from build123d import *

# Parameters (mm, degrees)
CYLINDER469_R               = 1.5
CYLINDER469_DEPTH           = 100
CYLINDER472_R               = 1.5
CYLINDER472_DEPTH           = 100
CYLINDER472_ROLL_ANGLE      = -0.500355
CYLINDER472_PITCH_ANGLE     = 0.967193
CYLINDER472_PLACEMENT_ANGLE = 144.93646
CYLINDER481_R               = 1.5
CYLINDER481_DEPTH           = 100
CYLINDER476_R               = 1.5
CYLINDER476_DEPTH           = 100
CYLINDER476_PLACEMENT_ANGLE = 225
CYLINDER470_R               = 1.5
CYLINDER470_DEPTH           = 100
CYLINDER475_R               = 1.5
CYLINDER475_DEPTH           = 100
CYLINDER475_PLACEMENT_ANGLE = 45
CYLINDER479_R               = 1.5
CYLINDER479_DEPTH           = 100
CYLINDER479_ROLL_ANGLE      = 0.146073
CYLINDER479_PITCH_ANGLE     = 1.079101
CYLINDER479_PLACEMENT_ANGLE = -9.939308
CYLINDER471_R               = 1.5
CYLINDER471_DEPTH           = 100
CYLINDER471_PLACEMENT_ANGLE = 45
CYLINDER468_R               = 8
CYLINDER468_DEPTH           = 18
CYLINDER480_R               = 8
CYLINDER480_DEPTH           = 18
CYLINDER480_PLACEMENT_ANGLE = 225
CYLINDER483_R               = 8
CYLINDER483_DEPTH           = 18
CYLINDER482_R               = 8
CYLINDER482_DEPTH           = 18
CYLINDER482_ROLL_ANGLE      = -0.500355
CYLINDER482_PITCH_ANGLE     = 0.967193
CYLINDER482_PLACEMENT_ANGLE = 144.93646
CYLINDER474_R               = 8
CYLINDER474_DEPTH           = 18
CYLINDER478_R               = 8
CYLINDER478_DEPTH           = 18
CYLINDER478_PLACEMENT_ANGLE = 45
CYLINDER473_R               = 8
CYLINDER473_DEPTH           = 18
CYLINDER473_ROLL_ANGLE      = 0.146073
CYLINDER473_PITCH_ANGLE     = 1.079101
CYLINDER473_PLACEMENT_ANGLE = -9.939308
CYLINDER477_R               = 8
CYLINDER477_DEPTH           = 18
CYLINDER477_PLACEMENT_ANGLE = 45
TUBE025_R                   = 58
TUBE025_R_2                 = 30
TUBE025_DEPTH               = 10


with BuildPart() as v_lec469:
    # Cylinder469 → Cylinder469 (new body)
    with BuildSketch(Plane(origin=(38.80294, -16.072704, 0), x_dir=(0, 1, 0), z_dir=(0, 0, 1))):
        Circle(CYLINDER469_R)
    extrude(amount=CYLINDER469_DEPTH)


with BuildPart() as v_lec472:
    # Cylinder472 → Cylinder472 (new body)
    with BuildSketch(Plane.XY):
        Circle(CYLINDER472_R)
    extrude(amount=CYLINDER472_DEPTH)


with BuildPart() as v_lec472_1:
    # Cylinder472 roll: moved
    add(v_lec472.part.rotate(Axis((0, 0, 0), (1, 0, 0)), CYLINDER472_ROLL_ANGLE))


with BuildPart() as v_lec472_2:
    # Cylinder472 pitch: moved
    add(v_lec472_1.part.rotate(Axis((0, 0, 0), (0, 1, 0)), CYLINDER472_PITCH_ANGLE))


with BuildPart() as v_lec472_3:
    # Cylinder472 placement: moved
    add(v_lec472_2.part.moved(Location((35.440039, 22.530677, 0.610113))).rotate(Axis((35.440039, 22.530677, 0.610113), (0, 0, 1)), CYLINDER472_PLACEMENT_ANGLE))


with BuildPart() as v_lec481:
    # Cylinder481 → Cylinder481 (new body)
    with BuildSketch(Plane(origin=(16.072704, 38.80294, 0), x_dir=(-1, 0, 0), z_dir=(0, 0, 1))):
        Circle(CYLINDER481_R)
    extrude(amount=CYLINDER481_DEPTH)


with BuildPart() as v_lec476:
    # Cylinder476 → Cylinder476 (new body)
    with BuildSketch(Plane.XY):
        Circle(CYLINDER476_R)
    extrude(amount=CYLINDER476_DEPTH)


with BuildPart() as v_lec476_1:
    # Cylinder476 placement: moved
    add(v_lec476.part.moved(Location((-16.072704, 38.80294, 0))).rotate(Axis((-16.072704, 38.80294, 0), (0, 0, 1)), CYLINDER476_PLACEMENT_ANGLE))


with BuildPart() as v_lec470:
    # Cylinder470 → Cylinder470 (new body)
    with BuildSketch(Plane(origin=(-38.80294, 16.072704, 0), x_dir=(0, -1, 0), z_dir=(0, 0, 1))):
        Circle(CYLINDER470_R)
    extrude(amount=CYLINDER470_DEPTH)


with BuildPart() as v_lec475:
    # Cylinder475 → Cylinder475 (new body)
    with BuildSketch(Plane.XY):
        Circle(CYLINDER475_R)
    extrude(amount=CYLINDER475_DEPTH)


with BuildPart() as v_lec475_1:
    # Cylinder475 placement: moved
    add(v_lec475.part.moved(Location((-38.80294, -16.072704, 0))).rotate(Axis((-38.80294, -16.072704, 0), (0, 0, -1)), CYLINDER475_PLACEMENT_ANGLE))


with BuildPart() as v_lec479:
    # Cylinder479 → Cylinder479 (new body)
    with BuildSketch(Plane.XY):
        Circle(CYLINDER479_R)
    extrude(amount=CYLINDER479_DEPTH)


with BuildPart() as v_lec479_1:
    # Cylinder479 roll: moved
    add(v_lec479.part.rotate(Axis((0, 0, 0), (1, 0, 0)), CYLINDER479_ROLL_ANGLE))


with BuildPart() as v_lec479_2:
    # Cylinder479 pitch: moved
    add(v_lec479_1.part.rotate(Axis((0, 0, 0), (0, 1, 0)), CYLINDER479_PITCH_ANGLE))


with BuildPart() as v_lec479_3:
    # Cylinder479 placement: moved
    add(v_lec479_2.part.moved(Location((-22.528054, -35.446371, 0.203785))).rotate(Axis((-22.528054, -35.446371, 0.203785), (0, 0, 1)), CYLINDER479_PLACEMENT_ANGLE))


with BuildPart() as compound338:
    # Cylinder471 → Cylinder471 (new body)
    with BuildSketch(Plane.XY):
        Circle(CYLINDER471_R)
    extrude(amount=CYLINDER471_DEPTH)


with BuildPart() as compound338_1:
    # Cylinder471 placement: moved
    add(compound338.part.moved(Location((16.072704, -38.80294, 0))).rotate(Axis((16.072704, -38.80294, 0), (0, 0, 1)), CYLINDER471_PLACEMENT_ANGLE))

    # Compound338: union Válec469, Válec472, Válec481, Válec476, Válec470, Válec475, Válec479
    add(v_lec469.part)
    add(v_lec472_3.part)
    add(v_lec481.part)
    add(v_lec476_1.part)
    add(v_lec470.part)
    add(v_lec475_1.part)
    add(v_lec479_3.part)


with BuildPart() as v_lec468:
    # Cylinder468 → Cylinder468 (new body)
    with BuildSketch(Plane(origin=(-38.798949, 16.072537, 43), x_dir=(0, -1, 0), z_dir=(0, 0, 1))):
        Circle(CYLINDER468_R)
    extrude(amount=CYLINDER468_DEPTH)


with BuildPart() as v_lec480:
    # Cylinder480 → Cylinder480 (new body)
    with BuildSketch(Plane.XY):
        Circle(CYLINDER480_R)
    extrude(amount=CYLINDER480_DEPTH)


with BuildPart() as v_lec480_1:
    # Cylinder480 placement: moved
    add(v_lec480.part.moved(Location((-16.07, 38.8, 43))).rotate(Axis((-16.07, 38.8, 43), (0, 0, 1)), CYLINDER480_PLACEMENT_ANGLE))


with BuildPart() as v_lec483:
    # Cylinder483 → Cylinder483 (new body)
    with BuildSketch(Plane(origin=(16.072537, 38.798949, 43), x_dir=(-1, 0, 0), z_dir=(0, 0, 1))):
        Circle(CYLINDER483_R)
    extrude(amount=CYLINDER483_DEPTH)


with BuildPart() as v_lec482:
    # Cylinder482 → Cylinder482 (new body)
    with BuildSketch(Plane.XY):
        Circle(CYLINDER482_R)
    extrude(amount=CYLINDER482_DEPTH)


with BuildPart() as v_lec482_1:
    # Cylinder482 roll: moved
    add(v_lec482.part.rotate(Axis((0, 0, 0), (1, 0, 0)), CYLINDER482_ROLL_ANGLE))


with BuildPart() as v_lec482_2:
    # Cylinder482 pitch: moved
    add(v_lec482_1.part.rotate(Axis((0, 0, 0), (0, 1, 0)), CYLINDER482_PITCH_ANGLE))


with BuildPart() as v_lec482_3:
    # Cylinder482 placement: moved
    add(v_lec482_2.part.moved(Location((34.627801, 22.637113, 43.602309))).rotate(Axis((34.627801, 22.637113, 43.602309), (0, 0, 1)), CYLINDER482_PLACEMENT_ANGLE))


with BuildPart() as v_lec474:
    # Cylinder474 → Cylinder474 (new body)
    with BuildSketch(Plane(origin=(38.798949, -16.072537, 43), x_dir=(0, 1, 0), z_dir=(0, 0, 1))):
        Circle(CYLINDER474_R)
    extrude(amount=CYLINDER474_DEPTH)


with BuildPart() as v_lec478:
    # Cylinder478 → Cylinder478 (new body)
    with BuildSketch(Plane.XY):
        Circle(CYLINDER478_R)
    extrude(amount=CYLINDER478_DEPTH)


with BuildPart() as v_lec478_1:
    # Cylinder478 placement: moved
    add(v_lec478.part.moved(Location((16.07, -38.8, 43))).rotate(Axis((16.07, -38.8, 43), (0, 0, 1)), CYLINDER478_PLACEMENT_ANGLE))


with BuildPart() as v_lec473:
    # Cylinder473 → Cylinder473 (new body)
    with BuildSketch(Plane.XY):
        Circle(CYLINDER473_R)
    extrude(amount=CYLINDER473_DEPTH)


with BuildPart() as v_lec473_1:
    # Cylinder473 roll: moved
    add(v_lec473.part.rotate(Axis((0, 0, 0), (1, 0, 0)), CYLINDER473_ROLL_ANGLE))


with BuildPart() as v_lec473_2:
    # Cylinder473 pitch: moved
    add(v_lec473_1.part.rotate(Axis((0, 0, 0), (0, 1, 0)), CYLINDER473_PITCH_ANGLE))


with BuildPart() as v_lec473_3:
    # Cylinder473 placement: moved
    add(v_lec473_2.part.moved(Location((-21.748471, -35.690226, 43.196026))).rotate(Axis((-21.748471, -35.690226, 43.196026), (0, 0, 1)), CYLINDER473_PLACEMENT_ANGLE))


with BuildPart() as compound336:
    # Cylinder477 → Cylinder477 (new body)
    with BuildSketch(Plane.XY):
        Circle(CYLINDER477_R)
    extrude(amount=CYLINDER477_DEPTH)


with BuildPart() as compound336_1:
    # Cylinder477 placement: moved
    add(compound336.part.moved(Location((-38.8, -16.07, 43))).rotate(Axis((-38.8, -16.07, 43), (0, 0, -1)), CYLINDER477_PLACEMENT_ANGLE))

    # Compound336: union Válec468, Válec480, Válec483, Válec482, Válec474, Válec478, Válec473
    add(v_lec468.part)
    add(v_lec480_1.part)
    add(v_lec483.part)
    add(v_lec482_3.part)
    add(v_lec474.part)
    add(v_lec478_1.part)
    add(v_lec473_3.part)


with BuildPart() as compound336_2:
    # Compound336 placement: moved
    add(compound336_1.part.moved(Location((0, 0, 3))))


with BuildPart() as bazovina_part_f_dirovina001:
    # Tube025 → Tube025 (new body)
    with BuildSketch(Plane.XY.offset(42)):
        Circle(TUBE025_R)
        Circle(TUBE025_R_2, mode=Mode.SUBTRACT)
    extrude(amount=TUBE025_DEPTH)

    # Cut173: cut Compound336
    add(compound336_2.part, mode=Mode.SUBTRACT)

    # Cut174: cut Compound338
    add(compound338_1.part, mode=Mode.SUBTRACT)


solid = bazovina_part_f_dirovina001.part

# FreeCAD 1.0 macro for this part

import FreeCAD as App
import Part
import Sketcher

doc = App.newDocument("Part")
body = doc.addObject("PartDesign::Body", "Body")

# Sketch on XY plane
sketch1 = body.newObject("Sketcher::SketchObject", "Sketch")
sketch1.AttachmentSupport = (doc.getObject("XY_Plane"), [""])
sketch1.MapMode = "FlatFace"
sketch1.addGeometry(Part.Circle(App.Vector(38.8, -16.1, 0), App.Vector(0, 0, 1), 1.5), False)
sketch1.addConstraint([
    Sketcher.Constraint("Diameter", 0, 3.0),
    Sketcher.Constraint("DistanceX", -1, 1, 0, 3, 38.80294),
    Sketcher.Constraint("DistanceY", 0, 3, -1, 1, 16.072704),
])
pad1 = body.newObject("PartDesign::Pad", "Pad")
pad1.Profile = sketch1
pad1.Length = 100
body2 = doc.addObject("PartDesign::Body", "Body001")

# Sketch on XY plane
sketch2 = body2.newObject("Sketcher::SketchObject", "Sketch001")
sketch2.AttachmentSupport = (doc.getObject("XY_Plane001"), [""])
sketch2.MapMode = "FlatFace"
sketch2.addGeometry(Part.Circle(App.Vector(0, 0, 0), App.Vector(0, 0, 1), 1.5), False)
sketch2.addConstraint([
    Sketcher.Constraint("Coincident", 0, 3, -1, 1),
    Sketcher.Constraint("Diameter", 0, 3.0),
])
pad2 = body2.newObject("PartDesign::Pad", "Pad001")
pad2.Profile = sketch2
pad2.Length = 100
body3 = doc.addObject("PartDesign::Body", "Body002")
doc.recompute()

body2.Placement = App.Placement(App.Vector(0, 0, 0), App.Rotation(App.Vector(1, 0, 0), 359.499645))
boolean = body3.newObject("PartDesign::Boolean", "Boolean")
boolean.Type = "Fuse"
boolean.addObjects([body2])
body4 = doc.addObject("PartDesign::Body", "Body003")
doc.recompute()

body3.Placement = App.Placement(App.Vector(0, 0, 0), App.Rotation(App.Vector(0, 1, 0), 0.967193))
boolean2 = body4.newObject("PartDesign::Boolean", "Boolean001")
boolean2.Type = "Fuse"
boolean2.addObjects([body3])
body5 = doc.addObject("PartDesign::Body", "Body004")
doc.recompute()

body4.Placement = App.Placement(App.Vector(35.440039, 22.530677, 0.610113), App.Rotation(App.Vector(0, 0, 1), 144.93646))
boolean3 = body5.newObject("PartDesign::Boolean", "Boolean002")
boolean3.Type = "Fuse"
boolean3.addObjects([body4])
body6 = doc.addObject("PartDesign::Body", "Body005")

# Sketch on XY plane
sketch3 = body6.newObject("Sketcher::SketchObject", "Sketch002")
sketch3.AttachmentSupport = (doc.getObject("XY_Plane005"), [""])
sketch3.MapMode = "FlatFace"
sketch3.addGeometry(Part.Circle(App.Vector(16.1, 38.8, 0), App.Vector(0, 0, 1), 1.5), False)
sketch3.addConstraint([
    Sketcher.Constraint("Diameter", 0, 3.0),
    Sketcher.Constraint("DistanceY", -1, 1, 0, 3, 38.80294),
    Sketcher.Constraint("DistanceX", -1, 1, 0, 3, 16.072704),
])
pad3 = body6.newObject("PartDesign::Pad", "Pad002")
pad3.Profile = sketch3
pad3.Length = 100
body7 = doc.addObject("PartDesign::Body", "Body006")

# Sketch on XY plane
sketch4 = body7.newObject("Sketcher::SketchObject", "Sketch003")
sketch4.AttachmentSupport = (doc.getObject("XY_Plane006"), [""])
sketch4.MapMode = "FlatFace"
sketch4.addGeometry(Part.Circle(App.Vector(0, 0, 0), App.Vector(0, 0, 1), 1.5), False)
sketch4.addConstraint([
    Sketcher.Constraint("Coincident", 0, 3, -1, 1),
    Sketcher.Constraint("Diameter", 0, 3.0),
])
pad4 = body7.newObject("PartDesign::Pad", "Pad003")
pad4.Profile = sketch4
pad4.Length = 100
body8 = doc.addObject("PartDesign::Body", "Body007")
doc.recompute()

body7.Placement = App.Placement(App.Vector(-16.072704, 38.80294, 0), App.Rotation(App.Vector(0, 0, 1), 225))
boolean4 = body8.newObject("PartDesign::Boolean", "Boolean003")
boolean4.Type = "Fuse"
boolean4.addObjects([body7])
body9 = doc.addObject("PartDesign::Body", "Body008")

# Sketch on XY plane
sketch5 = body9.newObject("Sketcher::SketchObject", "Sketch004")
sketch5.AttachmentSupport = (doc.getObject("XY_Plane008"), [""])
sketch5.MapMode = "FlatFace"
sketch5.addGeometry(Part.Circle(App.Vector(-38.8, 16.1, 0), App.Vector(0, 0, 1), 1.5), False)
sketch5.addConstraint([
    Sketcher.Constraint("Diameter", 0, 3.0),
    Sketcher.Constraint("DistanceX", 0, 3, -1, 1, 38.80294),
    Sketcher.Constraint("DistanceY", -1, 1, 0, 3, 16.072704),
])
pad5 = body9.newObject("PartDesign::Pad", "Pad004")
pad5.Profile = sketch5
pad5.Length = 100
body10 = doc.addObject("PartDesign::Body", "Body009")

# Sketch on XY plane
sketch6 = body10.newObject("Sketcher::SketchObject", "Sketch005")
sketch6.AttachmentSupport = (doc.getObject("XY_Plane009"), [""])
sketch6.MapMode = "FlatFace"
sketch6.addGeometry(Part.Circle(App.Vector(0, 0, 0), App.Vector(0, 0, 1), 1.5), False)
sketch6.addConstraint([
    Sketcher.Constraint("Coincident", 0, 3, -1, 1),
    Sketcher.Constraint("Diameter", 0, 3.0),
])
pad6 = body10.newObject("PartDesign::Pad", "Pad005")
pad6.Profile = sketch6
pad6.Length = 100
body11 = doc.addObject("PartDesign::Body", "Body010")
doc.recompute()

body10.Placement = App.Placement(App.Vector(-38.80294, -16.072704, 0), App.Rotation(App.Vector(0, 0, -1), 45))
boolean5 = body11.newObject("PartDesign::Boolean", "Boolean004")
boolean5.Type = "Fuse"
boolean5.addObjects([body10])
body12 = doc.addObject("PartDesign::Body", "Body011")

# Sketch on XY plane
sketch7 = body12.newObject("Sketcher::SketchObject", "Sketch006")
sketch7.AttachmentSupport = (doc.getObject("XY_Plane011"), [""])
sketch7.MapMode = "FlatFace"
sketch7.addGeometry(Part.Circle(App.Vector(0, 0, 0), App.Vector(0, 0, 1), 1.5), False)
sketch7.addConstraint([
    Sketcher.Constraint("Coincident", 0, 3, -1, 1),
    Sketcher.Constraint("Diameter", 0, 3.0),
])
pad7 = body12.newObject("PartDesign::Pad", "Pad006")
pad7.Profile = sketch7
pad7.Length = 100
body13 = doc.addObject("PartDesign::Body", "Body012")
doc.recompute()

body12.Placement = App.Placement(App.Vector(0, 0, 0), App.Rotation(App.Vector(1, 0, 0), 0.146073))
boolean6 = body13.newObject("PartDesign::Boolean", "Boolean005")
boolean6.Type = "Fuse"
boolean6.addObjects([body12])
body14 = doc.addObject("PartDesign::Body", "Body013")
doc.recompute()

body13.Placement = App.Placement(App.Vector(0, 0, 0), App.Rotation(App.Vector(0, 1, 0), 1.079101))
boolean7 = body14.newObject("PartDesign::Boolean", "Boolean006")
boolean7.Type = "Fuse"
boolean7.addObjects([body13])
body15 = doc.addObject("PartDesign::Body", "Body014")
doc.recompute()

body14.Placement = App.Placement(App.Vector(-22.528054, -35.446371, 0.203785), App.Rotation(App.Vector(0, 0, 1), 350.060692))
boolean8 = body15.newObject("PartDesign::Boolean", "Boolean007")
boolean8.Type = "Fuse"
boolean8.addObjects([body14])
body16 = doc.addObject("PartDesign::Body", "Body015")

# Sketch on XY plane
sketch8 = body16.newObject("Sketcher::SketchObject", "Sketch007")
sketch8.AttachmentSupport = (doc.getObject("XY_Plane015"), [""])
sketch8.MapMode = "FlatFace"
sketch8.addGeometry(Part.Circle(App.Vector(0, 0, 0), App.Vector(0, 0, 1), 1.5), False)
sketch8.addConstraint([
    Sketcher.Constraint("Coincident", 0, 3, -1, 1),
    Sketcher.Constraint("Diameter", 0, 3.0),
])
pad8 = body16.newObject("PartDesign::Pad", "Pad007")
pad8.Profile = sketch8
pad8.Length = 100
body17 = doc.addObject("PartDesign::Body", "Body016")
body17.AllowCompound = True
doc.recompute()

body16.Placement = App.Placement(App.Vector(16.072704, -38.80294, 0), App.Rotation(App.Vector(0, 0, 1), 45))
boolean9 = body17.newObject("PartDesign::Boolean", "Boolean008")
boolean9.Type = "Fuse"
boolean9.addObjects([body16])
doc.recompute()

boolean10 = body17.newObject("PartDesign::Boolean", "Boolean009")
boolean10.Type = "Fuse"
boolean10.addObjects([body])
doc.recompute()

boolean11 = body17.newObject("PartDesign::Boolean", "Boolean010")
boolean11.Type = "Fuse"
boolean11.addObjects([body5])
doc.recompute()

boolean12 = body17.newObject("PartDesign::Boolean", "Boolean011")
boolean12.Type = "Fuse"
boolean12.addObjects([body6])
doc.recompute()

boolean13 = body17.newObject("PartDesign::Boolean", "Boolean012")
boolean13.Type = "Fuse"
boolean13.addObjects([body8])
doc.recompute()

boolean14 = body17.newObject("PartDesign::Boolean", "Boolean013")
boolean14.Type = "Fuse"
boolean14.addObjects([body9])
doc.recompute()

boolean15 = body17.newObject("PartDesign::Boolean", "Boolean014")
boolean15.Type = "Fuse"
boolean15.addObjects([body11])
doc.recompute()

boolean16 = body17.newObject("PartDesign::Boolean", "Boolean015")
boolean16.Type = "Fuse"
boolean16.addObjects([body15])
body18 = doc.addObject("PartDesign::Body", "Body017")

# Sketch on XY plane
sketch9 = body18.newObject("Sketcher::SketchObject", "Sketch008")
sketch9.AttachmentSupport = (doc.getObject("XY_Plane017"), [""])
sketch9.MapMode = "FlatFace"
sketch9.AttachmentOffset = App.Placement(App.Vector(0, 0, 43), App.Rotation())
sketch9.addGeometry(Part.Circle(App.Vector(-39, 16, 0), App.Vector(0, 0, 1), 8), False)
sketch9.addConstraint([
    Sketcher.Constraint("Diameter", 0, 16.0),
    Sketcher.Constraint("DistanceX", 0, 3, -1, 1, 38.798949),
    Sketcher.Constraint("DistanceY", -1, 1, 0, 3, 16.072537),
])
pad9 = body18.newObject("PartDesign::Pad", "Pad008")
pad9.Profile = sketch9
pad9.Length = 18
body19 = doc.addObject("PartDesign::Body", "Body018")

# Sketch on XY plane
sketch10 = body19.newObject("Sketcher::SketchObject", "Sketch009")
sketch10.AttachmentSupport = (doc.getObject("XY_Plane018"), [""])
sketch10.MapMode = "FlatFace"
sketch10.addGeometry(Part.Circle(App.Vector(0, 0, 0), App.Vector(0, 0, 1), 8), False)
sketch10.addConstraint([
    Sketcher.Constraint("Coincident", 0, 3, -1, 1),
    Sketcher.Constraint("Diameter", 0, 16.0),
])
pad10 = body19.newObject("PartDesign::Pad", "Pad009")
pad10.Profile = sketch10
pad10.Length = 18
body20 = doc.addObject("PartDesign::Body", "Body019")
doc.recompute()

body19.Placement = App.Placement(App.Vector(-16.07, 38.8, 43), App.Rotation(App.Vector(0, 0, 1), 225))
boolean17 = body20.newObject("PartDesign::Boolean", "Boolean016")
boolean17.Type = "Fuse"
boolean17.addObjects([body19])
body21 = doc.addObject("PartDesign::Body", "Body020")

# Sketch on XY plane
sketch11 = body21.newObject("Sketcher::SketchObject", "Sketch010")
sketch11.AttachmentSupport = (doc.getObject("XY_Plane020"), [""])
sketch11.MapMode = "FlatFace"
sketch11.AttachmentOffset = App.Placement(App.Vector(0, 0, 43), App.Rotation())
sketch11.addGeometry(Part.Circle(App.Vector(16, 39, 0), App.Vector(0, 0, 1), 8), False)
sketch11.addConstraint([
    Sketcher.Constraint("Diameter", 0, 16.0),
    Sketcher.Constraint("DistanceY", -1, 1, 0, 3, 38.798949),
    Sketcher.Constraint("DistanceX", -1, 1, 0, 3, 16.072537),
])
pad11 = body21.newObject("PartDesign::Pad", "Pad010")
pad11.Profile = sketch11
pad11.Length = 18
body22 = doc.addObject("PartDesign::Body", "Body021")

# Sketch on XY plane
sketch12 = body22.newObject("Sketcher::SketchObject", "Sketch011")
sketch12.AttachmentSupport = (doc.getObject("XY_Plane021"), [""])
sketch12.MapMode = "FlatFace"
sketch12.addGeometry(Part.Circle(App.Vector(0, 0, 0), App.Vector(0, 0, 1), 8), False)
sketch12.addConstraint([
    Sketcher.Constraint("Coincident", 0, 3, -1, 1),
    Sketcher.Constraint("Diameter", 0, 16.0),
])
pad12 = body22.newObject("PartDesign::Pad", "Pad011")
pad12.Profile = sketch12
pad12.Length = 18
body23 = doc.addObject("PartDesign::Body", "Body022")
doc.recompute()

body22.Placement = App.Placement(App.Vector(0, 0, 0), App.Rotation(App.Vector(1, 0, 0), 359.499645))
boolean18 = body23.newObject("PartDesign::Boolean", "Boolean017")
boolean18.Type = "Fuse"
boolean18.addObjects([body22])
body24 = doc.addObject("PartDesign::Body", "Body023")
doc.recompute()

body23.Placement = App.Placement(App.Vector(0, 0, 0), App.Rotation(App.Vector(0, 1, 0), 0.967193))
boolean19 = body24.newObject("PartDesign::Boolean", "Boolean018")
boolean19.Type = "Fuse"
boolean19.addObjects([body23])
body25 = doc.addObject("PartDesign::Body", "Body024")
doc.recompute()

body24.Placement = App.Placement(App.Vector(34.627801, 22.637113, 43.602309), App.Rotation(App.Vector(0, 0, 1), 144.93646))
boolean20 = body25.newObject("PartDesign::Boolean", "Boolean019")
boolean20.Type = "Fuse"
boolean20.addObjects([body24])
body26 = doc.addObject("PartDesign::Body", "Body025")

# Sketch on XY plane
sketch13 = body26.newObject("Sketcher::SketchObject", "Sketch012")
sketch13.AttachmentSupport = (doc.getObject("XY_Plane025"), [""])
sketch13.MapMode = "FlatFace"
sketch13.AttachmentOffset = App.Placement(App.Vector(0, 0, 43), App.Rotation())
sketch13.addGeometry(Part.Circle(App.Vector(39, -16, 0), App.Vector(0, 0, 1), 8), False)
sketch13.addConstraint([
    Sketcher.Constraint("Diameter", 0, 16.0),
    Sketcher.Constraint("DistanceX", -1, 1, 0, 3, 38.798949),
    Sketcher.Constraint("DistanceY", 0, 3, -1, 1, 16.072537),
])
pad13 = body26.newObject("PartDesign::Pad", "Pad012")
pad13.Profile = sketch13
pad13.Length = 18
body27 = doc.addObject("PartDesign::Body", "Body026")

# Sketch on XY plane
sketch14 = body27.newObject("Sketcher::SketchObject", "Sketch013")
sketch14.AttachmentSupport = (doc.getObject("XY_Plane026"), [""])
sketch14.MapMode = "FlatFace"
sketch14.addGeometry(Part.Circle(App.Vector(0, 0, 0), App.Vector(0, 0, 1), 8), False)
sketch14.addConstraint([
    Sketcher.Constraint("Coincident", 0, 3, -1, 1),
    Sketcher.Constraint("Diameter", 0, 16.0),
])
pad14 = body27.newObject("PartDesign::Pad", "Pad013")
pad14.Profile = sketch14
pad14.Length = 18
body28 = doc.addObject("PartDesign::Body", "Body027")
doc.recompute()

body27.Placement = App.Placement(App.Vector(16.07, -38.8, 43), App.Rotation(App.Vector(0, 0, 1), 45))
boolean21 = body28.newObject("PartDesign::Boolean", "Boolean020")
boolean21.Type = "Fuse"
boolean21.addObjects([body27])
body29 = doc.addObject("PartDesign::Body", "Body028")

# Sketch on XY plane
sketch15 = body29.newObject("Sketcher::SketchObject", "Sketch014")
sketch15.AttachmentSupport = (doc.getObject("XY_Plane028"), [""])
sketch15.MapMode = "FlatFace"
sketch15.addGeometry(Part.Circle(App.Vector(0, 0, 0), App.Vector(0, 0, 1), 8), False)
sketch15.addConstraint([
    Sketcher.Constraint("Coincident", 0, 3, -1, 1),
    Sketcher.Constraint("Diameter", 0, 16.0),
])
pad15 = body29.newObject("PartDesign::Pad", "Pad014")
pad15.Profile = sketch15
pad15.Length = 18
body30 = doc.addObject("PartDesign::Body", "Body029")
doc.recompute()

body29.Placement = App.Placement(App.Vector(0, 0, 0), App.Rotation(App.Vector(1, 0, 0), 0.146073))
boolean22 = body30.newObject("PartDesign::Boolean", "Boolean021")
boolean22.Type = "Fuse"
boolean22.addObjects([body29])
body31 = doc.addObject("PartDesign::Body", "Body030")
doc.recompute()

body30.Placement = App.Placement(App.Vector(0, 0, 0), App.Rotation(App.Vector(0, 1, 0), 1.079101))
boolean23 = body31.newObject("PartDesign::Boolean", "Boolean022")
boolean23.Type = "Fuse"
boolean23.addObjects([body30])
body32 = doc.addObject("PartDesign::Body", "Body031")
doc.recompute()

body31.Placement = App.Placement(App.Vector(-21.748471, -35.690226, 43.196026), App.Rotation(App.Vector(0, 0, 1), 350.060692))
boolean24 = body32.newObject("PartDesign::Boolean", "Boolean023")
boolean24.Type = "Fuse"
boolean24.addObjects([body31])
body33 = doc.addObject("PartDesign::Body", "Body032")

# Sketch on XY plane
sketch16 = body33.newObject("Sketcher::SketchObject", "Sketch015")
sketch16.AttachmentSupport = (doc.getObject("XY_Plane032"), [""])
sketch16.MapMode = "FlatFace"
sketch16.addGeometry(Part.Circle(App.Vector(0, 0, 0), App.Vector(0, 0, 1), 8), False)
sketch16.addConstraint([
    Sketcher.Constraint("Coincident", 0, 3, -1, 1),
    Sketcher.Constraint("Diameter", 0, 16.0),
])
pad16 = body33.newObject("PartDesign::Pad", "Pad015")
pad16.Profile = sketch16
pad16.Length = 18
body34 = doc.addObject("PartDesign::Body", "Body033")
body34.AllowCompound = True
doc.recompute()

body33.Placement = App.Placement(App.Vector(-38.8, -16.07, 43), App.Rotation(App.Vector(0, 0, -1), 45))
boolean25 = body34.newObject("PartDesign::Boolean", "Boolean024")
boolean25.Type = "Fuse"
boolean25.addObjects([body33])
doc.recompute()

boolean26 = body34.newObject("PartDesign::Boolean", "Boolean025")
boolean26.Type = "Fuse"
boolean26.addObjects([body18])
doc.recompute()

boolean27 = body34.newObject("PartDesign::Boolean", "Boolean026")
boolean27.Type = "Fuse"
boolean27.addObjects([body20])
doc.recompute()

boolean28 = body34.newObject("PartDesign::Boolean", "Boolean027")
boolean28.Type = "Fuse"
boolean28.addObjects([body21])
doc.recompute()

boolean29 = body34.newObject("PartDesign::Boolean", "Boolean028")
boolean29.Type = "Fuse"
boolean29.addObjects([body25])
doc.recompute()

boolean30 = body34.newObject("PartDesign::Boolean", "Boolean029")
boolean30.Type = "Fuse"
boolean30.addObjects([body26])
doc.recompute()

boolean31 = body34.newObject("PartDesign::Boolean", "Boolean030")
boolean31.Type = "Fuse"
boolean31.addObjects([body28])
doc.recompute()

boolean32 = body34.newObject("PartDesign::Boolean", "Boolean031")
boolean32.Type = "Fuse"
boolean32.addObjects([body32])
body35 = doc.addObject("PartDesign::Body", "Body034")
body35.AllowCompound = True
doc.recompute()

body34.Placement = App.Placement(App.Vector(0, 0, 3), App.Rotation(App.Vector(0, 0, 1), 0))
boolean33 = body35.newObject("PartDesign::Boolean", "Boolean032")
boolean33.Type = "Fuse"
boolean33.addObjects([body34])
body36 = doc.addObject("PartDesign::Body", "Body035")

# Sketch on XY plane
sketch17 = body36.newObject("Sketcher::SketchObject", "Sketch016")
sketch17.AttachmentSupport = (doc.getObject("XY_Plane035"), [""])
sketch17.MapMode = "FlatFace"
sketch17.AttachmentOffset = App.Placement(App.Vector(0, 0, 42), App.Rotation())
sketch17.addGeometry([
    Part.Circle(App.Vector(0, 0, 0), App.Vector(0, 0, 1), 58),
    Part.Circle(App.Vector(0, 0, 0), App.Vector(0, 0, 1), 30),
], False)
sketch17.addConstraint([
    Sketcher.Constraint("Coincident", 0, 3, -1, 1),
    Sketcher.Constraint("Coincident", 1, 3, -1, 1),
    Sketcher.Constraint("Diameter", 0, 116.0),
    Sketcher.Constraint("Diameter", 1, 60.0),
])
pad17 = body36.newObject("PartDesign::Pad", "Pad016")
pad17.Profile = sketch17
pad17.Length = 10
doc.recompute()

boolean34 = body36.newObject("PartDesign::Boolean", "Boolean033")
boolean34.Type = "Cut"
boolean34.addObjects([body35])
doc.recompute()

boolean35 = body36.newObject("PartDesign::Boolean", "Boolean034")
boolean35.Type = "Cut"
boolean35.addObjects([body17])

doc.recompute()
